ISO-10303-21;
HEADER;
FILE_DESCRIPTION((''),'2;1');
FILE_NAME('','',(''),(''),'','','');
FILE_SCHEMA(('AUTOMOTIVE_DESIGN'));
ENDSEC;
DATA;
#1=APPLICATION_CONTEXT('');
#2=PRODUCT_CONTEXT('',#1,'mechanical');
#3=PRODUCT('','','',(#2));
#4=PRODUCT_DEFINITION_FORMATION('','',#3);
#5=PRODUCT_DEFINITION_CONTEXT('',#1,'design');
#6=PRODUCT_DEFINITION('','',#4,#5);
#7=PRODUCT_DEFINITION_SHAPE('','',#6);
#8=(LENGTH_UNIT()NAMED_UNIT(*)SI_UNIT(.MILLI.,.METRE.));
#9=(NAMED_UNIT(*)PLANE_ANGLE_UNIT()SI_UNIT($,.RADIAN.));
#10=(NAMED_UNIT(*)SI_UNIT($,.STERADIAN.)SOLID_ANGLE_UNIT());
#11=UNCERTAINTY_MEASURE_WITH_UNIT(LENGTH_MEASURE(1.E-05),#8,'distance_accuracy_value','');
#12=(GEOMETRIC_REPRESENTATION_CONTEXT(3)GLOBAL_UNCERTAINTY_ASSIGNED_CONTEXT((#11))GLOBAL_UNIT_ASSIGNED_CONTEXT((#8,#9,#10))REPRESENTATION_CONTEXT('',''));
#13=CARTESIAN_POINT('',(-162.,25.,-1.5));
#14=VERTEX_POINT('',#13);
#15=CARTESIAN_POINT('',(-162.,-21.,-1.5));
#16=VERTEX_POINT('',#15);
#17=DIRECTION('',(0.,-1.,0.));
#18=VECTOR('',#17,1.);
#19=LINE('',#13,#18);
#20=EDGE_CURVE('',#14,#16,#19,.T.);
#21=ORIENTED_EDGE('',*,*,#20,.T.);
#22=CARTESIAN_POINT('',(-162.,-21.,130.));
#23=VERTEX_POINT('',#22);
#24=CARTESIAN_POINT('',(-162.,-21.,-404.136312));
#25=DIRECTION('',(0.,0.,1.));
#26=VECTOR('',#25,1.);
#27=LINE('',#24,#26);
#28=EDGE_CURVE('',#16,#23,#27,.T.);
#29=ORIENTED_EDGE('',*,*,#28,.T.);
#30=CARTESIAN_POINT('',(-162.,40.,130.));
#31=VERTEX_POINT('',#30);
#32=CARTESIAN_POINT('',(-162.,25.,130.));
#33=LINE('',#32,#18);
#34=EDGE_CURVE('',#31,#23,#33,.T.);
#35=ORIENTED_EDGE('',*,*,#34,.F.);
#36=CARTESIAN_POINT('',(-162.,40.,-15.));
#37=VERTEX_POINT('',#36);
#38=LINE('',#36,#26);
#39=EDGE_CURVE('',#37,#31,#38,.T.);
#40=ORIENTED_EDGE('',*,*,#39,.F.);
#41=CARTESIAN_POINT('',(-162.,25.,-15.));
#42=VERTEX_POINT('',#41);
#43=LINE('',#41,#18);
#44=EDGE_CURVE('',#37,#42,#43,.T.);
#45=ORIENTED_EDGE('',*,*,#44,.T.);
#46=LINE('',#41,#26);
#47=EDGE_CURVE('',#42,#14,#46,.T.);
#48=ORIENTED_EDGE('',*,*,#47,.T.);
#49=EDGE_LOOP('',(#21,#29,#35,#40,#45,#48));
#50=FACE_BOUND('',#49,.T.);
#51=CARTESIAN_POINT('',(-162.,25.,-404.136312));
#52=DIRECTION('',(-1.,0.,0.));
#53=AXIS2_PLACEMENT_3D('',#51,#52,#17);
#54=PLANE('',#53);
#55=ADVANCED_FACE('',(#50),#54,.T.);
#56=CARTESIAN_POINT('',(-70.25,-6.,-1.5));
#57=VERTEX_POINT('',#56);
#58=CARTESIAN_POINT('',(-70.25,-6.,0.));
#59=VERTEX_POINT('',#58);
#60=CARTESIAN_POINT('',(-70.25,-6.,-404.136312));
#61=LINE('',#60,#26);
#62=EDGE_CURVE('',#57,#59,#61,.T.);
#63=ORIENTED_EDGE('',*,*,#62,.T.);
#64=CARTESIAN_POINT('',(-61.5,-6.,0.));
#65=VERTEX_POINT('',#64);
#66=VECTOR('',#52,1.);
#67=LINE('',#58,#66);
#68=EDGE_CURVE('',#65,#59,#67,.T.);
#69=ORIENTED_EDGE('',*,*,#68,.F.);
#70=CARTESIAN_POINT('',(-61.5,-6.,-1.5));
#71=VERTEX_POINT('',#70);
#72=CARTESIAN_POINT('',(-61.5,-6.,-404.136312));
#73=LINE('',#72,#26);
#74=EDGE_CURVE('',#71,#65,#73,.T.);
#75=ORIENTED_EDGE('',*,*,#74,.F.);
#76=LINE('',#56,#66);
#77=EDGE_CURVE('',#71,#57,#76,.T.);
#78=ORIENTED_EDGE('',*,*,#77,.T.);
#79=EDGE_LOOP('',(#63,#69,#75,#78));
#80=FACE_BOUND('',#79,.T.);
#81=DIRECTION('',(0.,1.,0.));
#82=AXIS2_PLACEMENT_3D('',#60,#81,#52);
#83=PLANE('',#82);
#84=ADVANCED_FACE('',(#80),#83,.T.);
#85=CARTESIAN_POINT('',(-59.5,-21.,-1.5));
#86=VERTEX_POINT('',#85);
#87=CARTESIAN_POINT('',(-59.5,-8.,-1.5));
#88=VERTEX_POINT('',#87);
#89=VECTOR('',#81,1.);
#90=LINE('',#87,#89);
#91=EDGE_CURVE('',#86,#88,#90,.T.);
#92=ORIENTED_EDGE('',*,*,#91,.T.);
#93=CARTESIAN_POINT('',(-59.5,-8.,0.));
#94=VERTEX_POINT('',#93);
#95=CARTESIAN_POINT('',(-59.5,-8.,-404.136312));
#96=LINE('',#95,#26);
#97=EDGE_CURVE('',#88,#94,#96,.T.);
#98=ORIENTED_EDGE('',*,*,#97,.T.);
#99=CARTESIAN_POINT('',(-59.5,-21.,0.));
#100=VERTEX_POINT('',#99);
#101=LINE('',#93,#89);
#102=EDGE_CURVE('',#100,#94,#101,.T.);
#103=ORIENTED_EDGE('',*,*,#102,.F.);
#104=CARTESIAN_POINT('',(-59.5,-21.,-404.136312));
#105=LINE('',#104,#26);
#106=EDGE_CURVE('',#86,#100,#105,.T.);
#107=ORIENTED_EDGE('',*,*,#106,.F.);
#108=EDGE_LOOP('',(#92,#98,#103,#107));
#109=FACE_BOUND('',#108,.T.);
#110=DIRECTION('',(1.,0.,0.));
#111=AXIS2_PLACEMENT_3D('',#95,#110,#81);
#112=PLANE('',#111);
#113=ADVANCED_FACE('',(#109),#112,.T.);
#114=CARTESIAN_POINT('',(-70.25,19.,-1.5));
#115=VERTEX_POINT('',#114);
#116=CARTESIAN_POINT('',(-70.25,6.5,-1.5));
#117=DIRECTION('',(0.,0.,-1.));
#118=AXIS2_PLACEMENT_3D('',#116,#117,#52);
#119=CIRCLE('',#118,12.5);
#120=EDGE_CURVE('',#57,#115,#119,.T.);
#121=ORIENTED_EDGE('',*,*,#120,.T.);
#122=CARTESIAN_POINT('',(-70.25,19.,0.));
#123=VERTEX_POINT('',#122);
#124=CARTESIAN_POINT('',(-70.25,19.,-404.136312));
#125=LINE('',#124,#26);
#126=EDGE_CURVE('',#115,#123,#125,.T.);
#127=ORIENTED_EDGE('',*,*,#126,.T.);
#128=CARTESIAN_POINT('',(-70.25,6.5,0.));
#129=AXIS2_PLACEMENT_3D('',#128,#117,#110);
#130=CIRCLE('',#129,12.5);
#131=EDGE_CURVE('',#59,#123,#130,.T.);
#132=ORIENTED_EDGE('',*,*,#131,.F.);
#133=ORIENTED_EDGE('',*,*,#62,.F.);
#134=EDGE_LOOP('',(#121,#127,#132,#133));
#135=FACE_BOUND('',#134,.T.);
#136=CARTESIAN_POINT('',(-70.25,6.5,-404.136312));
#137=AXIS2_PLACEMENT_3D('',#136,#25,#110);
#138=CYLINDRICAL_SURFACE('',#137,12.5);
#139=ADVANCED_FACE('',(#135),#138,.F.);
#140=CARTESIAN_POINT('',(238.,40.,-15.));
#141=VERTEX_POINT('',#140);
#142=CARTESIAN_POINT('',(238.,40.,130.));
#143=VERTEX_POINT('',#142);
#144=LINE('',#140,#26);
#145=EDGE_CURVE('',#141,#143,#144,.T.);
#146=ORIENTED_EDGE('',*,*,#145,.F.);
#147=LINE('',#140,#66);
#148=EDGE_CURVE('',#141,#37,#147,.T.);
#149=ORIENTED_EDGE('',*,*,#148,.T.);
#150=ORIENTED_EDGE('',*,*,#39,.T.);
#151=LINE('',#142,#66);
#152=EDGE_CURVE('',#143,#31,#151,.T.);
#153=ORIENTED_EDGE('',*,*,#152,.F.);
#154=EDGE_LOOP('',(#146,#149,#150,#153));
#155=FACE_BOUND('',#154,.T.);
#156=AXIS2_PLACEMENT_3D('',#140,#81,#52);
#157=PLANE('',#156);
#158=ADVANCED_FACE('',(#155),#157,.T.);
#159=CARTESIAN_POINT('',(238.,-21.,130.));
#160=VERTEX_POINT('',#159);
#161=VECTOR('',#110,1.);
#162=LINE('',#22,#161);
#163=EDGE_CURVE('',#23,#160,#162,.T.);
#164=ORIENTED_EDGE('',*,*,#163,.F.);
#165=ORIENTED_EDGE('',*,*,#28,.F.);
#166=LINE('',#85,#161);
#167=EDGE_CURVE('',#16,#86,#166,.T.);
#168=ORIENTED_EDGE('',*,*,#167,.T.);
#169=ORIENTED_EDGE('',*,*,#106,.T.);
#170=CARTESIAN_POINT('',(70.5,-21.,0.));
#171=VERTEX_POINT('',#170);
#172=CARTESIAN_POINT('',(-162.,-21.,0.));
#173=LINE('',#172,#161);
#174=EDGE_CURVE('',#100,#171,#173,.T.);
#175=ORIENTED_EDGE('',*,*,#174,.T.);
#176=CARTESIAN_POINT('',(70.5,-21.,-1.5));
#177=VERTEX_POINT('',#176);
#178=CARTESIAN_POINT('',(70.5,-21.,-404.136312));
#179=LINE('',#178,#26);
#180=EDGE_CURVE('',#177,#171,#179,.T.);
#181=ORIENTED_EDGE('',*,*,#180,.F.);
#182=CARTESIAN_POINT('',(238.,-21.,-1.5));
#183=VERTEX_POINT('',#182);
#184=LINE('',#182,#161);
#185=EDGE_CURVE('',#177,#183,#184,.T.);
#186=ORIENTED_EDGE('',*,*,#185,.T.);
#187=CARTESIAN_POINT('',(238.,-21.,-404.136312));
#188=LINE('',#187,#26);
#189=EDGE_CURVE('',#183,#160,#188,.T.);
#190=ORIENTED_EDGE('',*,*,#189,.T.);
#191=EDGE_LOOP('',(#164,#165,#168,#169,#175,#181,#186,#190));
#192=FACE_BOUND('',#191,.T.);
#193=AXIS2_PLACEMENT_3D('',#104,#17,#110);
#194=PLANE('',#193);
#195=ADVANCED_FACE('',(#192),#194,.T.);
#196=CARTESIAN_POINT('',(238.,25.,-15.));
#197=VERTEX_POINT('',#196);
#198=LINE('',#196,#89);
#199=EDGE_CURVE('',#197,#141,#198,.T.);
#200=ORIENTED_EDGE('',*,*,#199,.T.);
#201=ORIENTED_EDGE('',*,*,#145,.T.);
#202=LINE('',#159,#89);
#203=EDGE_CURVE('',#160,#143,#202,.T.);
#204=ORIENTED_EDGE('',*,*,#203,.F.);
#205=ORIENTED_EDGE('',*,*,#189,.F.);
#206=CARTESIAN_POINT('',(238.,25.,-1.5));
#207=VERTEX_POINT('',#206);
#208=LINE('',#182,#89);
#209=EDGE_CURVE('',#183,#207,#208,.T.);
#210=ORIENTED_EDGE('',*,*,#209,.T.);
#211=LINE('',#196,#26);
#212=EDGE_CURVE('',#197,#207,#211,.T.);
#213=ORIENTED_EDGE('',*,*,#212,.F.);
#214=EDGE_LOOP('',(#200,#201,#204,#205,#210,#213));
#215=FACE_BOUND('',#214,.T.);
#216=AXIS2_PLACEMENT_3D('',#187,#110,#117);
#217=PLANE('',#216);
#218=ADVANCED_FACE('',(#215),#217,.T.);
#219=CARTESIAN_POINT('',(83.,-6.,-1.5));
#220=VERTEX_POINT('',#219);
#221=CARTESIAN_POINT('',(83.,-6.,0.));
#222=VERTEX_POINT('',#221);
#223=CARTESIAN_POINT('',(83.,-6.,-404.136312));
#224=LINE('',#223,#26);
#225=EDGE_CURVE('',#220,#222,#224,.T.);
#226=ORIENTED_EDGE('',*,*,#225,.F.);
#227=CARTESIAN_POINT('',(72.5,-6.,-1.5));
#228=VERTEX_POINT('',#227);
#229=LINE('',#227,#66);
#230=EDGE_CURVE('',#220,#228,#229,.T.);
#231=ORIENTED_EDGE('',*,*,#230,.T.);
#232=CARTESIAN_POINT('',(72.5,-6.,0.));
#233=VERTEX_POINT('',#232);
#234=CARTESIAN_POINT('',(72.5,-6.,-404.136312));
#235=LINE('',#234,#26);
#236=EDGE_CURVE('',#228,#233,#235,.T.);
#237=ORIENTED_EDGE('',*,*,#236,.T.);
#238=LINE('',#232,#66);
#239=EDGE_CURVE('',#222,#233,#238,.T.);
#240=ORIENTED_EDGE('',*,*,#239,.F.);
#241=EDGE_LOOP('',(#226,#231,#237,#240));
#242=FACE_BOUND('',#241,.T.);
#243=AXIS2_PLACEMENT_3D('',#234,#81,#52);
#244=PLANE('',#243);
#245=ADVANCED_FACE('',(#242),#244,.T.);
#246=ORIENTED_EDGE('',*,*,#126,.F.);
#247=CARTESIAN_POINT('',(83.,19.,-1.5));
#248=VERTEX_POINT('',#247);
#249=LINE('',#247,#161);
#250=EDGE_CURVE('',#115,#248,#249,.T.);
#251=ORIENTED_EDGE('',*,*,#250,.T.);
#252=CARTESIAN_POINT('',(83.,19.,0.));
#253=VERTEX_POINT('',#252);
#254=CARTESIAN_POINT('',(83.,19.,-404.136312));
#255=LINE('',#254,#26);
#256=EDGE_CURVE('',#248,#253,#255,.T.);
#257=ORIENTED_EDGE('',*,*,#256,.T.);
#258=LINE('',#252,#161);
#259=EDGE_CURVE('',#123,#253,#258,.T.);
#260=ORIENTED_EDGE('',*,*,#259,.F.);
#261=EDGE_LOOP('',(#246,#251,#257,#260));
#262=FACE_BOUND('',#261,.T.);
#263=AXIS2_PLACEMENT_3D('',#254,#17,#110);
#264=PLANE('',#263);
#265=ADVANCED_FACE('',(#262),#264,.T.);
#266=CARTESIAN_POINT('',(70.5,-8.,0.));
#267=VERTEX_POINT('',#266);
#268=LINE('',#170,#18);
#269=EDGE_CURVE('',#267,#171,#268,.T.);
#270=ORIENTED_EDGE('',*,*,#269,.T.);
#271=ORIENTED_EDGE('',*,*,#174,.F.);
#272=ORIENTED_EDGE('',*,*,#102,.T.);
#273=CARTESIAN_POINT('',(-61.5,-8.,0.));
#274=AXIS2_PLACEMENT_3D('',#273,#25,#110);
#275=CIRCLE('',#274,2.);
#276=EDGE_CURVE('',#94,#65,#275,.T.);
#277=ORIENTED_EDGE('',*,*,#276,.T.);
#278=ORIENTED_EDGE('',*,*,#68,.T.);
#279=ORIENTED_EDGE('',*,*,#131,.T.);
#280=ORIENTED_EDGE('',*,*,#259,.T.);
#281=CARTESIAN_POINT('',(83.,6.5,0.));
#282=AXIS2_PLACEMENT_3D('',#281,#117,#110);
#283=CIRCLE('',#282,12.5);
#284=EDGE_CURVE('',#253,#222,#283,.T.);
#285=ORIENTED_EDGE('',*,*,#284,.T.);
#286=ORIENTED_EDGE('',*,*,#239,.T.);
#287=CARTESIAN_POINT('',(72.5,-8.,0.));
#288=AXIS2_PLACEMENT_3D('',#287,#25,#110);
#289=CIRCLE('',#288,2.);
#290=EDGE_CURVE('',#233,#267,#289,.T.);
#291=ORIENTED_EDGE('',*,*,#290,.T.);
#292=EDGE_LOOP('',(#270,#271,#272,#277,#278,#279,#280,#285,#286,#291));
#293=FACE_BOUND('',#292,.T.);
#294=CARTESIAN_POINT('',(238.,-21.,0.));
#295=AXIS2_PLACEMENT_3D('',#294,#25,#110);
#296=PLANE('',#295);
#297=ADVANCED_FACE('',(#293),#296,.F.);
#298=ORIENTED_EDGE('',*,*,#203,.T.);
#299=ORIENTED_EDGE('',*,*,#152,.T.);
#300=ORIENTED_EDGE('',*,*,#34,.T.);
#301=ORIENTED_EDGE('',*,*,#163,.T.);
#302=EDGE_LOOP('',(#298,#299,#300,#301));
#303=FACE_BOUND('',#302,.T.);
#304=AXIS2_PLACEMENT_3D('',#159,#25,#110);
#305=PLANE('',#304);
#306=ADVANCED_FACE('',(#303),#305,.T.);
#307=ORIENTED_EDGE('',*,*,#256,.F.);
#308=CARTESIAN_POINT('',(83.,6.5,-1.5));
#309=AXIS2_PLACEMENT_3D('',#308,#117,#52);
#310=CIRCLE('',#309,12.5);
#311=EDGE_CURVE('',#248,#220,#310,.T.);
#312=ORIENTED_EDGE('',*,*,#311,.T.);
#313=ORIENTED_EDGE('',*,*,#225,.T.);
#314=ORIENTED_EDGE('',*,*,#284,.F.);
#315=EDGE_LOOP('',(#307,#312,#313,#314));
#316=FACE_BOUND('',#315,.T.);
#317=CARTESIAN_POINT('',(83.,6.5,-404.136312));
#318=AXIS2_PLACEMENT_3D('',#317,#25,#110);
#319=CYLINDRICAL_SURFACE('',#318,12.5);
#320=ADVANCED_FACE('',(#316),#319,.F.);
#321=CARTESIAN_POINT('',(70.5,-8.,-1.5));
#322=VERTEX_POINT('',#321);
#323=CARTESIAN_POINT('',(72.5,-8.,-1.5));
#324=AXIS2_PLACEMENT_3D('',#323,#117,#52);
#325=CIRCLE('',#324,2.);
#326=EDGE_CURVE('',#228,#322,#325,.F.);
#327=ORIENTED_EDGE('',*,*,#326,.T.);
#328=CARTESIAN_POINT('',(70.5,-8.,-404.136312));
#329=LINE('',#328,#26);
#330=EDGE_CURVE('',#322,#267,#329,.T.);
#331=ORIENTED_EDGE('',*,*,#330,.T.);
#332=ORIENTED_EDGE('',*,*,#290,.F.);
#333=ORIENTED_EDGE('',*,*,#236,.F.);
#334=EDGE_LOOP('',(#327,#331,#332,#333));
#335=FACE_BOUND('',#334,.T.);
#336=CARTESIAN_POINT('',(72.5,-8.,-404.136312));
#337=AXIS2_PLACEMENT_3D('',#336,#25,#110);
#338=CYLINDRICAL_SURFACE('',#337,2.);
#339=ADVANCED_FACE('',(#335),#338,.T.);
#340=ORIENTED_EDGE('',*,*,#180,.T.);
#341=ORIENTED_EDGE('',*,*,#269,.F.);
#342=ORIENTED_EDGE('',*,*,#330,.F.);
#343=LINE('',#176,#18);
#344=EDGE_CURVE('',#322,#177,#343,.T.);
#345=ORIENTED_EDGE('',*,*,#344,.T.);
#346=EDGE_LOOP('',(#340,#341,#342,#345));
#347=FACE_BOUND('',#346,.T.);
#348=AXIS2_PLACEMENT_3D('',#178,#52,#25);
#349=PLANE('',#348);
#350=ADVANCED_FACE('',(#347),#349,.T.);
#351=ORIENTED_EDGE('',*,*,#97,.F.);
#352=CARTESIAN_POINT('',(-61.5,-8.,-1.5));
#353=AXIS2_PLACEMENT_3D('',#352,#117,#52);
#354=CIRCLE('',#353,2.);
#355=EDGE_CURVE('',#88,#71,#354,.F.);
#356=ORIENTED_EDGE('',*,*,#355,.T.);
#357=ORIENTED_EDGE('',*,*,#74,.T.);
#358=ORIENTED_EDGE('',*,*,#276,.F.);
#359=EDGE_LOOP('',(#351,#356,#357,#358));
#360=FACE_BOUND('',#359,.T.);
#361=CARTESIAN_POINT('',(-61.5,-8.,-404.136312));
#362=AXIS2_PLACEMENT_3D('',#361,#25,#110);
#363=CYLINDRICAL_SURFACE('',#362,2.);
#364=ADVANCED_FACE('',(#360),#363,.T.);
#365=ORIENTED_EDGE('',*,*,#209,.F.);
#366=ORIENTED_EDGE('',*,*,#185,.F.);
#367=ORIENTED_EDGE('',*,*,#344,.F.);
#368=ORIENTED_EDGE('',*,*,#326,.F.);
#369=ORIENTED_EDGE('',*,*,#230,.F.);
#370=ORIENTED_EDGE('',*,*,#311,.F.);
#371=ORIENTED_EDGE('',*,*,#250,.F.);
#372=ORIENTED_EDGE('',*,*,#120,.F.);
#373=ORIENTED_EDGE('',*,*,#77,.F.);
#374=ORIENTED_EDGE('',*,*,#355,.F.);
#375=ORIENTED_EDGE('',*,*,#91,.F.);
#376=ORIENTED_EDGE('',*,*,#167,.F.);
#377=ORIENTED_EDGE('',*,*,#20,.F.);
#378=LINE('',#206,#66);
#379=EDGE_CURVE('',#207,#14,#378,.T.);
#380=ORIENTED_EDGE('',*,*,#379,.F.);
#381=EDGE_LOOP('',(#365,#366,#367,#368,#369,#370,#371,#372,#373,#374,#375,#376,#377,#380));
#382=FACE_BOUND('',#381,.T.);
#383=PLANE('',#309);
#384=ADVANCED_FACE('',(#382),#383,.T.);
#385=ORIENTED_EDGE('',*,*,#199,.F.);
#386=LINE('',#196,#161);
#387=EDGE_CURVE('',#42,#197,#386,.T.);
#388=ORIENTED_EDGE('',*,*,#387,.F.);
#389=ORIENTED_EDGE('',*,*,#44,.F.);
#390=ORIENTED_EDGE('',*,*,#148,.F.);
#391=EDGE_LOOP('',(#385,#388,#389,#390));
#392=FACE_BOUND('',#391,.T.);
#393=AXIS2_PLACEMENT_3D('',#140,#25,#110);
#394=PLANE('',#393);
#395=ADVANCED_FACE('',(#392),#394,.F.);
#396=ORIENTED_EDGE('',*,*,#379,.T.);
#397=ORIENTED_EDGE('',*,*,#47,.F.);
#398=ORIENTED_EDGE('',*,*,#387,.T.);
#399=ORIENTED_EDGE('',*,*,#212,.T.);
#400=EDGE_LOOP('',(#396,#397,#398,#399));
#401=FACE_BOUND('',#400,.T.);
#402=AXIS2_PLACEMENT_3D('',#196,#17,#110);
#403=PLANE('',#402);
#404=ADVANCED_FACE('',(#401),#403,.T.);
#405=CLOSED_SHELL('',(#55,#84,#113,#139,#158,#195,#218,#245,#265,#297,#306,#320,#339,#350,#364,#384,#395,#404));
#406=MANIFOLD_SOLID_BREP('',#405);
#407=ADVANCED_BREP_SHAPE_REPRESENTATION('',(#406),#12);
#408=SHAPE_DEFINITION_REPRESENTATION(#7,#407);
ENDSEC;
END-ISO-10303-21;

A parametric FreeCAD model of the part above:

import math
import FreeCAD as App
import Part
import Sketcher
Q = App.Units.Quantity


def add_polygon(sketch, points):
    """Adds a closed chain of lines whose ends are joined by coincident constraints."""
    first, n = sketch.GeometryCount, len(points)
    for a, b in zip(points, points[1:] + points[:1]):
        sketch.addGeometry(Part.LineSegment(App.Vector(*a, 0), App.Vector(*b, 0)), False)
    for i in range(n):
        sketch.addConstraint(Sketcher.Constraint("Coincident", first + i, 2, first + (i + 1) % n, 1))

doc = App.newDocument("Part")
body = doc.addObject("PartDesign::Body", "Body")

# Sketch on XY plane
sketch1 = body.newObject("Sketcher::SketchObject", "Sketch")
sketch1.AttachmentSupport = (doc.getObject("XY_Plane"), [""])
sketch1.MapMode = "FlatFace"
sketch1.addGeometry([
    Part.LineSegment(App.Vector(70.5, -21, 0), App.Vector(238, -21, 0)),  # 0
    Part.LineSegment(App.Vector(238, -21, 0), App.Vector(238, 25, 0)),  # 1
    Part.LineSegment(App.Vector(238, 25, 0), App.Vector(-162, 25, 0)),  # 2
    Part.LineSegment(App.Vector(-162, 25, 0), App.Vector(-162, -21, 0)),  # 3
    Part.LineSegment(App.Vector(-162, -21, 0), App.Vector(-59.5, -21, 0)),  # 4
    Part.LineSegment(App.Vector(-59.5, -21, 0), App.Vector(-59.5, -8, 0)),  # 5
    Part.ArcOfCircle(Part.Circle(App.Vector(-61.5, -8, 0), App.Vector(0, 0, 1), 2), math.radians(0), math.radians(90)),  # 6
    Part.LineSegment(App.Vector(-61.5, -6, 0), App.Vector(-70.25, -6, 0)),  # 7
    Part.ArcOfCircle(Part.Circle(App.Vector(-70.25, 6.5, 0), App.Vector(0, 0, 1), 12.5), math.radians(90), math.radians(270)),  # 8
    Part.LineSegment(App.Vector(-70.25, 19, 0), App.Vector(83, 19, 0)),  # 9
    Part.ArcOfCircle(Part.Circle(App.Vector(83, 6.5, 0), App.Vector(0, 0, 1), 12.5), math.radians(-90), math.radians(90)),  # 10
    Part.LineSegment(App.Vector(83, -6, 0), App.Vector(72.5, -6, 0)),  # 11
    Part.ArcOfCircle(Part.Circle(App.Vector(72.5, -8, 0), App.Vector(0, 0, 1), 2), math.radians(90), math.radians(180)),  # 12
    Part.LineSegment(App.Vector(70.5, -8, 0), App.Vector(70.5, -21, 0)),  # 13
], False)
sketch1.addConstraint([
    Sketcher.Constraint("Coincident", 0, 2, 1, 1),
    Sketcher.Constraint("Coincident", 1, 2, 2, 1),
    Sketcher.Constraint("Coincident", 2, 2, 3, 1),
    Sketcher.Constraint("Coincident", 3, 2, 4, 1),
    Sketcher.Constraint("Coincident", 4, 2, 5, 1),
    Sketcher.Constraint("Tangent", 5, 2, 6, 1),
    Sketcher.Constraint("Tangent", 6, 2, 7, 1),
    Sketcher.Constraint("Tangent", 7, 2, 8, 2),
    Sketcher.Constraint("Tangent", 8, 1, 9, 1),
    Sketcher.Constraint("Tangent", 9, 2, 10, 2),
    Sketcher.Constraint("Tangent", 10, 1, 11, 1),
    Sketcher.Constraint("Tangent", 11, 2, 12, 1),
    Sketcher.Constraint("Tangent", 12, 2, 13, 1),
    Sketcher.Constraint("Coincident", 13, 2, 0, 1),
    Sketcher.Constraint("Horizontal", 0),
    Sketcher.Constraint("Vertical", 1),
    Sketcher.Constraint("Horizontal", 2),
    Sketcher.Constraint("Vertical", 3),
    Sketcher.Constraint("Horizontal", 4),
    Sketcher.Constraint("Vertical", 5),
    Sketcher.Constraint("Horizontal", 7),
    Sketcher.Constraint("Horizontal", 9),
    Sketcher.Constraint("Horizontal", 11),
    Sketcher.Constraint("Vertical", 13),
    Sketcher.Constraint("Equal", 8, 10),
    Sketcher.Constraint("Equal", 6, 12),
    Sketcher.Constraint("Horizontal", 0, 2, 3, 2),
    Sketcher.Constraint("Radius", 6, Q("2 mm")),
    Sketcher.Constraint("Radius", 8, Q("12.5 mm")),
    Sketcher.Constraint("DistanceX", 2, 2, 2, 1, Q("400 mm")),
    Sketcher.Constraint("DistanceY", 1, 1, 1, 2, Q("46 mm")),
    Sketcher.Constraint("DistanceY", 5, 1, 5, 2, Q("13 mm")),
    Sketcher.Constraint("DistanceX", 0, 1, 0, 2, Q("167.5 mm")),
    Sketcher.Constraint("DistanceX", 4, 1, 4, 2, Q("102.5 mm")),
    Sketcher.Constraint("DistanceX", 11, 2, 11, 1, Q("10.5 mm")),
    Sketcher.Constraint("DistanceY", 6, 3, -1, 1, Q("8 mm")),
    Sketcher.Constraint("DistanceX", -1, 1, 10, 3, Q("83 mm")),
    Sketcher.Constraint("DistanceX", 7, 2, 7, 1, Q("8.75 mm")),
])
pad1 = body.newObject("PartDesign::Pad", "Pad")
pad1.Profile = sketch1
pad1.Length = 1.5
pad1.Reversed = True

# Sketch on XY plane
sketch2 = body.newObject("Sketcher::SketchObject", "Sketch001")
sketch2.AttachmentSupport = (doc.getObject("XY_Plane"), [""])
sketch2.MapMode = "FlatFace"
add_polygon(sketch2, [(-162, 25), (-162, -21), (238, -21), (238, 25)])  # lines 0-3
sketch2.addConstraint([
    Sketcher.Constraint("Vertical", 0),
    Sketcher.Constraint("Horizontal", 1),
    Sketcher.Constraint("Vertical", 2),
    Sketcher.Constraint("Horizontal", 3),
    Sketcher.Constraint("DistanceX", 1, 1, 1, 2, Q("400 mm")),
    Sketcher.Constraint("DistanceY", 0, 2, 0, 1, Q("46 mm")),
    Sketcher.Constraint("DistanceX", 0, 2, -1, 1, Q("162 mm")),
    Sketcher.Constraint("DistanceY", 0, 2, -1, 1, Q("21 mm")),
])
pad2 = body.newObject("PartDesign::Pad", "Pad001")
pad2.Profile = sketch2
pad2.Length = 130

# Sketch on XY plane
sketch3 = body.newObject("Sketcher::SketchObject", "Sketch002")
sketch3.AttachmentSupport = (doc.getObject("XY_Plane"), [""])
sketch3.MapMode = "FlatFace"
sketch3.AttachmentOffset = App.Placement(App.Vector(0, 0, 130), App.Rotation())
add_polygon(sketch3, [(-162, 40), (-162, 25), (238, 25), (238, 40)])  # lines 0-3
sketch3.addConstraint([
    Sketcher.Constraint("Vertical", 0),
    Sketcher.Constraint("Horizontal", 1),
    Sketcher.Constraint("Vertical", 2),
    Sketcher.Constraint("Horizontal", 3),
    Sketcher.Constraint("DistanceX", 1, 1, 1, 2, Q("400 mm")),
    Sketcher.Constraint("DistanceY", 0, 2, 0, 1, Q("15 mm")),
    Sketcher.Constraint("DistanceX", 0, 2, -1, 1, Q("162 mm")),
    Sketcher.Constraint("DistanceY", -1, 1, 0, 2, Q("25 mm")),
])
pad3 = body.newObject("PartDesign::Pad", "Pad002")
pad3.Profile = sketch3
pad3.Length = 145
pad3.Reversed = True

doc.recompute()
